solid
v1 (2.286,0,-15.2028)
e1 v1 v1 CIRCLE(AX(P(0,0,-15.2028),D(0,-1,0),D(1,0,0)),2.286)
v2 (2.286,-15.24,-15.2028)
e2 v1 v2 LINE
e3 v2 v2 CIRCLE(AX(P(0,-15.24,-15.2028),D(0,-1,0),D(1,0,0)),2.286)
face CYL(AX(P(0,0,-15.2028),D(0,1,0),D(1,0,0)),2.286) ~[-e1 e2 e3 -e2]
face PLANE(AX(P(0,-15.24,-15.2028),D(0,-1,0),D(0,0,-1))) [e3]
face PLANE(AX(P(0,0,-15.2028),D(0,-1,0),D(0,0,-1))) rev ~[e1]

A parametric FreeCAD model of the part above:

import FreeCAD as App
import Part
import Sketcher
from FreeCAD import Vector
Q = App.Units.Quantity

doc = App.newDocument("Part")
params = doc.addObject("Spreadsheet::Sheet", "Params")
for row, (alias, value) in enumerate([
    ("sketch1_diameter", "0.18 in"),
    ("pad1_length", "0.6 in"),
], start=1):
    params.set(f"A{row}", alias)
    params.set(f"B{row}", "=" + value)
    params.setAlias(f"B{row}", alias)

body = doc.addObject("PartDesign::Body", "Body")

# Sketch on XZ plane
sketch1 = body.newObject("Sketcher::SketchObject", "Sketch")
sketch1.AttachmentSupport = (doc.getObject("XZ_Plane"), [""])
sketch1.MapMode = "FlatFace"
sketch1.addGeometry(Part.Circle(Vector(0, -15.2028, 0), Vector(0, 0, 1), 2.286), False)
sketch1.addConstraint([
    Sketcher.Constraint("PointOnObject", 0, 3, -2),
    Sketcher.Constraint("Diameter", 0, Q("0.18 in")),
    Sketcher.Constraint("DistanceY", 0, 3, -1, 1, Q("15.2028 mm")),
])
sketch1.setExpression("Constraints[1]", "Params.sketch1_diameter")
pad1 = body.newObject("PartDesign::Pad", "Pad")
pad1.Profile = sketch1
pad1.setExpression("Length", "Params.pad1_length")

doc.recompute()
